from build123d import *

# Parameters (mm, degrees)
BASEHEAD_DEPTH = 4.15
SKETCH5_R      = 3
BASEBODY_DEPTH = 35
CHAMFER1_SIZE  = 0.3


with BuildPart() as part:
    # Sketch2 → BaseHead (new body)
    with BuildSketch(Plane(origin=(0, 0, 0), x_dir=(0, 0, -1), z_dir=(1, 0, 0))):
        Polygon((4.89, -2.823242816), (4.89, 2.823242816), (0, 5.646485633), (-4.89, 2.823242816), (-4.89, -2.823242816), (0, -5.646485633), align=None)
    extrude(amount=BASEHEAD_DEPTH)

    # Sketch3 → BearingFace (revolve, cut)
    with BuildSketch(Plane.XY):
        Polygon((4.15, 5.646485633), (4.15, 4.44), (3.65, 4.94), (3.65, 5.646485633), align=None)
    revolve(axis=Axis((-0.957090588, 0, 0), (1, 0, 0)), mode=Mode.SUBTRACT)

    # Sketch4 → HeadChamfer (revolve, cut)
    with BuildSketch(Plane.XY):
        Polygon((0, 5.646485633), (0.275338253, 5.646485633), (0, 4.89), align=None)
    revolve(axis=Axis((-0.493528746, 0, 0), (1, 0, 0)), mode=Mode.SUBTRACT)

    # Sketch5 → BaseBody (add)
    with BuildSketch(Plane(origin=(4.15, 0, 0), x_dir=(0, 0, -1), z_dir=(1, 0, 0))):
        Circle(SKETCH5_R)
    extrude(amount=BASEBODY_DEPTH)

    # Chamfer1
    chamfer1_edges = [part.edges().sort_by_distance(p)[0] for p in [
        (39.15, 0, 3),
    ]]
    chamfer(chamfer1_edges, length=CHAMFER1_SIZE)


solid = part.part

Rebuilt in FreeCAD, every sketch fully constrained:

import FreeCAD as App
import Part
import Sketcher
Q = App.Units.Quantity


def edges_at(feature, points):
    """Names of the edges that pass closest to the given points."""
    edges = feature.Shape.Edges
    near = lambda p: min(range(len(edges)), key=lambda i: edges[i].distToShape(Part.Vertex(*p))[0])
    return sorted({f"Edge{near(p) + 1}" for p in points})

doc = App.newDocument("Part")
params = doc.addObject("Spreadsheet::Sheet", "Params")
for row, (alias, value) in enumerate([
    ("pad1_length", "4.15 mm"),
    ("sketch2_width", "0.5 mm"),
    ("groove_angle", "360 deg"),
    ("groove2_angle", "360 deg"),
    ("sketch4_diameter", "6 mm"),
    ("pad2_length", "35 mm"),
    ("chamfer_size", "0.3 mm"),
], start=1):
    params.set(f"A{row}", alias)
    params.set(f"B{row}", "=" + value)
    params.setAlias(f"B{row}", alias)

body = doc.addObject("PartDesign::Body", "Body")

# Sketch on YZ plane
sketch1 = body.newObject("Sketcher::SketchObject", "Sketch")
sketch1.AttachmentSupport = (doc.getObject("YZ_Plane"), [""])
sketch1.MapMode = "FlatFace"
sketch1.addGeometry([
    Part.LineSegment(App.Vector(-3, -5, 0), App.Vector(3, -5, 0)),  # 0
    Part.LineSegment(App.Vector(3, -5, 0), App.Vector(6, 0, 0)),  # 1
    Part.LineSegment(App.Vector(6, 0, 0), App.Vector(3, 5, 0)),  # 2
    Part.LineSegment(App.Vector(3, 5, 0), App.Vector(-3, 5, 0)),  # 3
    Part.LineSegment(App.Vector(-3, 5, 0), App.Vector(-6, 0, 0)),  # 4
    Part.LineSegment(App.Vector(-6, 0, 0), App.Vector(-3, -5, 0)),  # 5
], False)
sketch1.addConstraint([
    Sketcher.Constraint("Coincident", 0, 2, 1, 1),
    Sketcher.Constraint("Coincident", 1, 2, 2, 1),
    Sketcher.Constraint("Coincident", 2, 2, 3, 1),
    Sketcher.Constraint("Coincident", 3, 2, 4, 1),
    Sketcher.Constraint("Coincident", 4, 2, 5, 1),
    Sketcher.Constraint("Coincident", 5, 2, 0, 1),
    Sketcher.Constraint("Horizontal", 0),
    Sketcher.Constraint("Horizontal", 3),
    Sketcher.Constraint("Symmetric", 0, 2, 3, 2, -1, 1),
    Sketcher.Constraint("Symmetric", 1, 2, 4, 2, -1, 1),
    Sketcher.Constraint("PointOnObject", 1, 2, -1),
    Sketcher.Constraint("Parallel", 2, 5),
    Sketcher.Constraint("Vertical", 0, 2, 2, 2),
    Sketcher.Constraint("Angle", 1, Q("60 deg")),
    Sketcher.Constraint("DistanceY", 0, 2, -1, 1, Q("4.89 mm")),
    Sketcher.Constraint("DistanceX", 0, 1, 0, 2, Q("5.646486 mm")),
])
pad1 = body.newObject("PartDesign::Pad", "Pad")
pad1.Profile = sketch1
pad1.setExpression("Length", "Params.pad1_length")

# Sketch on XY plane
sketch2 = body.newObject("Sketcher::SketchObject", "Sketch001")
sketch2.AttachmentSupport = (doc.getObject("XY_Plane"), [""])
sketch2.MapMode = "FlatFace"
sketch2.addGeometry([
    Part.LineSegment(App.Vector(4.2, 4.4, 0), App.Vector(4.2, 5.6, 0)),
    Part.LineSegment(App.Vector(4.2, 5.6, 0), App.Vector(3.6, 5.6, 0)),
    Part.LineSegment(App.Vector(3.6, 5.6, 0), App.Vector(3.6, 4.9, 0)),
    Part.LineSegment(App.Vector(3.6, 4.9, 0), App.Vector(4.2, 4.4, 0)),
], False)
sketch2.addConstraint([
    Sketcher.Constraint("Coincident", 0, 2, 1, 1),
    Sketcher.Constraint("Coincident", 1, 2, 2, 1),
    Sketcher.Constraint("Coincident", 2, 2, 3, 1),
    Sketcher.Constraint("Coincident", 3, 2, 0, 1),
    Sketcher.Constraint("Vertical", 0),
    Sketcher.Constraint("Horizontal", 1),
    Sketcher.Constraint("Vertical", 2),
    Sketcher.Constraint("Angle", 3, Q("-45 deg")),
    Sketcher.Constraint("DistanceX", 1, 2, 1, 1, Q("0.5 mm")),
    Sketcher.Constraint("DistanceX", -1, 1, 0, 2, Q("4.15 mm")),
    Sketcher.Constraint("DistanceY", -1, 1, 2, 2, Q("4.94 mm")),
    Sketcher.Constraint("DistanceY", 0, 1, 0, 2, Q("1.206486 mm")),
])
sketch2.setExpression("Constraints[8]", "Params.sketch2_width")
groove = body.newObject("PartDesign::Groove", "Groove")
groove.Profile = sketch2
groove.ReferenceAxis = (sketch2, ["H_Axis"])
groove.setExpression("Angle", "Params.groove_angle")

# Sketch on XY plane
sketch3 = body.newObject("Sketcher::SketchObject", "Sketch002")
sketch3.AttachmentSupport = (doc.getObject("XY_Plane"), [""])
sketch3.MapMode = "FlatFace"
sketch3.addGeometry([
    Part.LineSegment(App.Vector(0.28, 5.65, 0), App.Vector(0, 5.65, 0)),
    Part.LineSegment(App.Vector(0, 5.65, 0), App.Vector(0, 4.89, 0)),
    Part.LineSegment(App.Vector(0, 4.89, 0), App.Vector(0.28, 5.65, 0)),
], False)
sketch3.addConstraint([
    Sketcher.Constraint("Coincident", 0, 2, 1, 1),
    Sketcher.Constraint("Coincident", 1, 2, 2, 1),
    Sketcher.Constraint("Coincident", 2, 2, 0, 1),
    Sketcher.Constraint("Horizontal", 0),
    Sketcher.Constraint("Vertical", 1),
    Sketcher.Constraint("PointOnObject", 0, 2, -2),
    Sketcher.Constraint("Angle", 2, Q("70 deg")),
    Sketcher.Constraint("DistanceY", -1, 1, 1, 2, Q("4.89 mm")),
    Sketcher.Constraint("DistanceX", 0, 2, 0, 1, Q("0.275338 mm")),
])
groove2 = body.newObject("PartDesign::Groove", "Groove001")
groove2.Profile = sketch3
groove2.ReferenceAxis = (sketch3, ["H_Axis"])
groove2.setExpression("Angle", "Params.groove2_angle")

# Sketch on YZ plane
sketch4 = body.newObject("Sketcher::SketchObject", "Sketch003")
sketch4.AttachmentSupport = (doc.getObject("YZ_Plane"), [""])
sketch4.MapMode = "FlatFace"
sketch4.AttachmentOffset = App.Placement(App.Vector(0, 0, 4.15), App.Rotation())
sketch4.addGeometry(Part.Circle(App.Vector(0, 0, 0), App.Vector(0, 0, 1), 3), False)
sketch4.addConstraint([
    Sketcher.Constraint("Coincident", 0, 3, -1, 1),
    Sketcher.Constraint("Diameter", 0, Q("6 mm")),
])
sketch4.setExpression("Constraints[1]", "Params.sketch4_diameter")
pad2 = body.newObject("PartDesign::Pad", "Pad001")
pad2.Profile = sketch4
pad2.setExpression("Length", "Params.pad2_length")
doc.recompute()

chamfer = body.newObject("PartDesign::Chamfer", "Chamfer")
chamfer.Base = (pad2, edges_at(pad2, [(39.15, 0, 3)]))
chamfer.setExpression("Size", "Params.chamfer_size")

doc.recompute()
